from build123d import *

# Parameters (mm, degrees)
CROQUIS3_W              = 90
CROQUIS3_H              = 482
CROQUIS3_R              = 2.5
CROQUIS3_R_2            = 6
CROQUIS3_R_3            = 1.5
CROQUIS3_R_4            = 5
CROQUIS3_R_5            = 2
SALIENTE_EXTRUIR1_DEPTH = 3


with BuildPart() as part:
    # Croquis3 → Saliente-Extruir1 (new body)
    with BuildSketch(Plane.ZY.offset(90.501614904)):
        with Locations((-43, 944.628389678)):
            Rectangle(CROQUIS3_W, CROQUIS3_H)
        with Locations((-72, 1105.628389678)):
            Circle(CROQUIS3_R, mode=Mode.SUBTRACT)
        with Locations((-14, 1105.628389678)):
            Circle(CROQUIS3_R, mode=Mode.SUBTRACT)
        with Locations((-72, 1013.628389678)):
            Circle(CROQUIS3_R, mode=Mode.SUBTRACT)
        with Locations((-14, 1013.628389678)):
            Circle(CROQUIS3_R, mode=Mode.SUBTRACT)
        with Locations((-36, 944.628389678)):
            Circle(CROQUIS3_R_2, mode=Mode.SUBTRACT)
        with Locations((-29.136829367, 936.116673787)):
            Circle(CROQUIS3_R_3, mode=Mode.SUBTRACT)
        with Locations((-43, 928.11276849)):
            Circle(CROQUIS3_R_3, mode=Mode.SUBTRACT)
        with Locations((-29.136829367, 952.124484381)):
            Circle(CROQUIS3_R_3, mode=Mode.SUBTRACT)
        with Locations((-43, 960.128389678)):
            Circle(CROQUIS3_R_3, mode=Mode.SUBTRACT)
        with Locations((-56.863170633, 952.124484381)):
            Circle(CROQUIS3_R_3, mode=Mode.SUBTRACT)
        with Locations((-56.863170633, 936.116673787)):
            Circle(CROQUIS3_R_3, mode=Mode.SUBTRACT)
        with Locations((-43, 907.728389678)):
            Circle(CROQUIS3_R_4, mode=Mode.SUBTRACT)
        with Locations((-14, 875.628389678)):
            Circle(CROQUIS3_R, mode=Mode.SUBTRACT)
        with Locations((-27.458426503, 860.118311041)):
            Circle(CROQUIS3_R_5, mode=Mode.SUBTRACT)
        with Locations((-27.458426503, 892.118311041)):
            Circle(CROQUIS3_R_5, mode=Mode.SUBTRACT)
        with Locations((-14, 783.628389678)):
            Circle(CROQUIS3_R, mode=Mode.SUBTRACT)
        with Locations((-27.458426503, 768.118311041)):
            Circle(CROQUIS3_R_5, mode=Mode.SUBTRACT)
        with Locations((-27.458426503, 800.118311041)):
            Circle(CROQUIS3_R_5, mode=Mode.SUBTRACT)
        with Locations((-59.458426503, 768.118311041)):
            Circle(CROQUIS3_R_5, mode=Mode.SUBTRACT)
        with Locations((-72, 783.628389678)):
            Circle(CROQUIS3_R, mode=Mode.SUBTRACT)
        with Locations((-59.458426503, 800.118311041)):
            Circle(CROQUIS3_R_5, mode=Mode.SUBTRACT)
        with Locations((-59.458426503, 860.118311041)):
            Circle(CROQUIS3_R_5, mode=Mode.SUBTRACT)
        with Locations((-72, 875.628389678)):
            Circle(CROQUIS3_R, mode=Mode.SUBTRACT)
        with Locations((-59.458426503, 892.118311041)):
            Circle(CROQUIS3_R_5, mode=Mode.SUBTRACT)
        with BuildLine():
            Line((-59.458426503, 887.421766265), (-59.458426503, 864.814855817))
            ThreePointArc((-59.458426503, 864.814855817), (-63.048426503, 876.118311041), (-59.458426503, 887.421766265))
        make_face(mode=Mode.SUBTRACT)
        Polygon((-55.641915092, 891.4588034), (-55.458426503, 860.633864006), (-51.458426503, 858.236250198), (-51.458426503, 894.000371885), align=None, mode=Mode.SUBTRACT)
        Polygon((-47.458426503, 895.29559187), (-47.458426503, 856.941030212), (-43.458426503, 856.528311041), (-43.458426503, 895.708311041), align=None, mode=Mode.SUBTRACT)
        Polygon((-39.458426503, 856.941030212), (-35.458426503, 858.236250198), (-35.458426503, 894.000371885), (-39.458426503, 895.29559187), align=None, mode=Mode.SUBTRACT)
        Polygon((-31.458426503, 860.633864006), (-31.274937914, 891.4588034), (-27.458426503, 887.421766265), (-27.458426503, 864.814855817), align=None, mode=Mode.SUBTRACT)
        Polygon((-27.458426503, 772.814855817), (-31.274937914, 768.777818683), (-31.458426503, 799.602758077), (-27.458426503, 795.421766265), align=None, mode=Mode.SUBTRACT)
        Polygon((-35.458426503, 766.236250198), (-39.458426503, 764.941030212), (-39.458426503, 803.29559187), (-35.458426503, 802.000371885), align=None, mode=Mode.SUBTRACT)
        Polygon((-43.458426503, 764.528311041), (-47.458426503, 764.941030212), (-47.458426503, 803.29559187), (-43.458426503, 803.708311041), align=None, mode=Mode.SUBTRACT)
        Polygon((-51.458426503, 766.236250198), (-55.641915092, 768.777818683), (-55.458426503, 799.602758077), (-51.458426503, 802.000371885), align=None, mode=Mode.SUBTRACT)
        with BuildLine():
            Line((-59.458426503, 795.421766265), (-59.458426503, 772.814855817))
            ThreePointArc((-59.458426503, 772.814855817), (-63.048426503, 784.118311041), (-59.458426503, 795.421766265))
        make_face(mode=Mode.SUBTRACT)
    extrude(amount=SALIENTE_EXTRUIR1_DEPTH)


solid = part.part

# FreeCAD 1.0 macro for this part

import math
import FreeCAD as App
import Part
import Sketcher
Q = App.Units.Quantity

doc = App.newDocument("Part")
params = doc.addObject("Spreadsheet::Sheet", "Params")
for row, (alias, value) in enumerate([
    ("sketch1_diameter", "5 mm"),
    ("sketch1_diameter2", "4 mm"),
    ("sketch1_diameter3", "3 mm"),
    ("sketch1_diameter4", "10 mm"),
    ("sketch1_diameter5", "12 mm"),
    ("pad1_length", "3 mm"),
], start=1):
    params.set(f"A{row}", alias)
    params.set(f"B{row}", "=" + value)
    params.setAlias(f"B{row}", alias)

body = doc.addObject("PartDesign::Body", "Body")

# Sketch on YZ plane
sketch1 = body.newObject("Sketcher::SketchObject", "Sketch")
sketch1.AttachmentSupport = (doc.getObject("YZ_Plane"), [""])
sketch1.MapMode = "FlatFace"
sketch1.AttachmentOffset = App.Placement(App.Vector(0, 0, -90.501615), App.Rotation())
sketch1.addGeometry([
    Part.LineSegment(App.Vector(1185.6, -88, 0), App.Vector(703.6, -88, 0)),  # 0
    Part.LineSegment(App.Vector(703.6, -88, 0), App.Vector(703.6, 2, 0)),  # 1
    Part.LineSegment(App.Vector(703.6, 2, 0), App.Vector(1185.6, 2, 0)),  # 2
    Part.LineSegment(App.Vector(1185.6, 2, 0), App.Vector(1185.6, -88, 0)),  # 3
    Part.Circle(App.Vector(783.6, -72, 0), App.Vector(0, 0, 1), 2.5),  # 4
    Part.Circle(App.Vector(768.1, -59.5, 0), App.Vector(0, 0, 1), 2),  # 5
    Part.ArcOfCircle(Part.Circle(App.Vector(784.1, -43.5, 0), App.Vector(0, 0, 1), 19.6), math.radians(-125), math.radians(-55)),  # 6
    Part.LineSegment(App.Vector(795.4, -59.5, 0), App.Vector(772.8, -59.5, 0)),  # 7
    Part.Circle(App.Vector(800.1, -59.5, 0), App.Vector(0, 0, 1), 2),  # 8
    Part.LineSegment(App.Vector(802, -51.5, 0), App.Vector(766.2, -51.5, 0)),  # 9
    Part.LineSegment(App.Vector(766.2, -51.5, 0), App.Vector(768.8, -55.6, 0)),  # 10
    Part.LineSegment(App.Vector(768.8, -55.6, 0), App.Vector(799.6, -55.5, 0)),  # 11
    Part.LineSegment(App.Vector(799.6, -55.5, 0), App.Vector(802, -51.5, 0)),  # 12
    Part.LineSegment(App.Vector(803.7, -43.5, 0), App.Vector(764.5, -43.5, 0)),  # 13
    Part.LineSegment(App.Vector(764.5, -43.5, 0), App.Vector(764.9, -47.5, 0)),  # 14
    Part.LineSegment(App.Vector(764.9, -47.5, 0), App.Vector(803.3, -47.5, 0)),  # 15
    Part.LineSegment(App.Vector(803.3, -47.5, 0), App.Vector(803.7, -43.5, 0)),  # 16
    Part.Circle(App.Vector(875.6, -72, 0), App.Vector(0, 0, 1), 2.5),  # 17
    Part.Circle(App.Vector(860.1, -59.5, 0), App.Vector(0, 0, 1), 2),  # 18
    Part.ArcOfCircle(Part.Circle(App.Vector(876.1, -43.5, 0), App.Vector(0, 0, 1), 19.6), math.radians(-125), math.radians(-55)),  # 19
    Part.LineSegment(App.Vector(887.4, -59.5, 0), App.Vector(864.8, -59.5, 0)),  # 20
    Part.Circle(App.Vector(892.1, -59.5, 0), App.Vector(0, 0, 1), 2),  # 21
    Part.LineSegment(App.Vector(860.6, -55.5, 0), App.Vector(891.5, -55.6, 0)),  # 22
    Part.LineSegment(App.Vector(891.5, -55.6, 0), App.Vector(894, -51.5, 0)),  # 23
    Part.LineSegment(App.Vector(894, -51.5, 0), App.Vector(858.2, -51.5, 0)),  # 24
    Part.LineSegment(App.Vector(858.2, -51.5, 0), App.Vector(860.6, -55.5, 0)),  # 25
    Part.LineSegment(App.Vector(856.9, -47.5, 0), App.Vector(895.3, -47.5, 0)),  # 26
    Part.LineSegment(App.Vector(895.3, -47.5, 0), App.Vector(895.7, -43.5, 0)),  # 27
    Part.LineSegment(App.Vector(895.7, -43.5, 0), App.Vector(856.5, -43.5, 0)),  # 28
    Part.LineSegment(App.Vector(856.5, -43.5, 0), App.Vector(856.9, -47.5, 0)),  # 29
    Part.Circle(App.Vector(936.1, -56.9, 0), App.Vector(0, 0, 1), 1.5),  # 30
    Part.LineSegment(App.Vector(802, -35.5, 0), App.Vector(766.2, -35.5, 0)),  # 31
    Part.LineSegment(App.Vector(766.2, -35.5, 0), App.Vector(764.9, -39.5, 0)),  # 32
    Part.LineSegment(App.Vector(764.9, -39.5, 0), App.Vector(803.3, -39.5, 0)),  # 33
    Part.LineSegment(App.Vector(803.3, -39.5, 0), App.Vector(802, -35.5, 0)),  # 34
    Part.Circle(App.Vector(768.1, -27.5, 0), App.Vector(0, 0, 1), 2),  # 35
    Part.LineSegment(App.Vector(795.4, -27.5, 0), App.Vector(772.8, -27.5, 0)),  # 36
    Part.LineSegment(App.Vector(772.8, -27.5, 0), App.Vector(768.8, -31.3, 0)),  # 37
    Part.LineSegment(App.Vector(768.8, -31.3, 0), App.Vector(799.6, -31.5, 0)),  # 38
    Part.LineSegment(App.Vector(799.6, -31.5, 0), App.Vector(795.4, -27.5, 0)),  # 39
    Part.Circle(App.Vector(800.1, -27.5, 0), App.Vector(0, 0, 1), 2),  # 40
    Part.Circle(App.Vector(783.6, -14, 0), App.Vector(0, 0, 1), 2.5),  # 41
    Part.LineSegment(App.Vector(858.2, -35.5, 0), App.Vector(856.9, -39.5, 0)),  # 42
    Part.LineSegment(App.Vector(856.9, -39.5, 0), App.Vector(895.3, -39.5, 0)),  # 43
    Part.LineSegment(App.Vector(895.3, -39.5, 0), App.Vector(894, -35.5, 0)),  # 44
    Part.LineSegment(App.Vector(894, -35.5, 0), App.Vector(858.2, -35.5, 0)),  # 45
    Part.Circle(App.Vector(860.1, -27.5, 0), App.Vector(0, 0, 1), 2),  # 46
    Part.LineSegment(App.Vector(864.8, -27.5, 0), App.Vector(860.6, -31.5, 0)),  # 47
    Part.LineSegment(App.Vector(860.6, -31.5, 0), App.Vector(891.5, -31.3, 0)),  # 48
    Part.LineSegment(App.Vector(891.5, -31.3, 0), App.Vector(887.4, -27.5, 0)),  # 49
    Part.LineSegment(App.Vector(887.4, -27.5, 0), App.Vector(864.8, -27.5, 0)),  # 50
    Part.Circle(App.Vector(892.1, -27.5, 0), App.Vector(0, 0, 1), 2),  # 51
    Part.Circle(App.Vector(907.7, -43, 0), App.Vector(0, 0, 1), 5),  # 52
    Part.Circle(App.Vector(928.1, -43, 0), App.Vector(0, 0, 1), 1.5),  # 53
    Part.Circle(App.Vector(936.1, -29.1, 0), App.Vector(0, 0, 1), 1.5),  # 54
    Part.Circle(App.Vector(875.6, -14, 0), App.Vector(0, 0, 1), 2.5),  # 55
    Part.Circle(App.Vector(1013.6, -72, 0), App.Vector(0, 0, 1), 2.5),  # 56
    Part.Circle(App.Vector(952.1, -56.9, 0), App.Vector(0, 0, 1), 1.5),  # 57
    Part.Circle(App.Vector(1105.6, -72, 0), App.Vector(0, 0, 1), 2.5),  # 58
    Part.Circle(App.Vector(944.6, -36, 0), App.Vector(0, 0, 1), 6),  # 59
    Part.Circle(App.Vector(960.1, -43, 0), App.Vector(0, 0, 1), 1.5),  # 60
    Part.Circle(App.Vector(952.1, -29.1, 0), App.Vector(0, 0, 1), 1.5),  # 61
    Part.Circle(App.Vector(1013.6, -14, 0), App.Vector(0, 0, 1), 2.5),  # 62
    Part.Circle(App.Vector(1105.6, -14, 0), App.Vector(0, 0, 1), 2.5),  # 63
], False)
sketch1.addConstraint([
    Sketcher.Constraint("Coincident", 0, 2, 1, 1),
    Sketcher.Constraint("Coincident", 1, 2, 2, 1),
    Sketcher.Constraint("Coincident", 2, 2, 3, 1),
    Sketcher.Constraint("Coincident", 3, 2, 0, 1),
    Sketcher.Constraint("Coincident", 6, 1, 7, 2),
    Sketcher.Constraint("Coincident", 7, 1, 6, 2),
    Sketcher.Constraint("Coincident", 9, 2, 10, 1),
    Sketcher.Constraint("Coincident", 10, 2, 11, 1),
    Sketcher.Constraint("Coincident", 11, 2, 12, 1),
    Sketcher.Constraint("Coincident", 12, 2, 9, 1),
    Sketcher.Constraint("Coincident", 13, 2, 14, 1),
    Sketcher.Constraint("Coincident", 14, 2, 15, 1),
    Sketcher.Constraint("Coincident", 15, 2, 16, 1),
    Sketcher.Constraint("Coincident", 16, 2, 13, 1),
    Sketcher.Constraint("Coincident", 19, 1, 20, 2),
    Sketcher.Constraint("Coincident", 20, 1, 19, 2),
    Sketcher.Constraint("Coincident", 22, 2, 23, 1),
    Sketcher.Constraint("Coincident", 23, 2, 24, 1),
    Sketcher.Constraint("Coincident", 24, 2, 25, 1),
    Sketcher.Constraint("Coincident", 25, 2, 22, 1),
    Sketcher.Constraint("Coincident", 26, 2, 27, 1),
    Sketcher.Constraint("Coincident", 27, 2, 28, 1),
    Sketcher.Constraint("Coincident", 28, 2, 29, 1),
    Sketcher.Constraint("Coincident", 29, 2, 26, 1),
    Sketcher.Constraint("Coincident", 31, 2, 32, 1),
    Sketcher.Constraint("Coincident", 32, 2, 33, 1),
    Sketcher.Constraint("Coincident", 33, 2, 34, 1),
    Sketcher.Constraint("Coincident", 34, 2, 31, 1),
    Sketcher.Constraint("Coincident", 36, 2, 37, 1),
    Sketcher.Constraint("Coincident", 37, 2, 38, 1),
    Sketcher.Constraint("Coincident", 38, 2, 39, 1),
    Sketcher.Constraint("Coincident", 39, 2, 36, 1),
    Sketcher.Constraint("Coincident", 42, 2, 43, 1),
    Sketcher.Constraint("Coincident", 43, 2, 44, 1),
    Sketcher.Constraint("Coincident", 44, 2, 45, 1),
    Sketcher.Constraint("Coincident", 45, 2, 42, 1),
    Sketcher.Constraint("Coincident", 47, 2, 48, 1),
    Sketcher.Constraint("Coincident", 48, 2, 49, 1),
    Sketcher.Constraint("Coincident", 49, 2, 50, 1),
    Sketcher.Constraint("Coincident", 50, 2, 47, 1),
    Sketcher.Constraint("Horizontal", 0),
    Sketcher.Constraint("Vertical", 1),
    Sketcher.Constraint("Horizontal", 2),
    Sketcher.Constraint("Vertical", 3),
    Sketcher.Constraint("Horizontal", 7),
    Sketcher.Constraint("Horizontal", 9),
    Sketcher.Constraint("Horizontal", 13),
    Sketcher.Constraint("Horizontal", 15),
    Sketcher.Constraint("Horizontal", 20),
    Sketcher.Constraint("Horizontal", 24),
    Sketcher.Constraint("Horizontal", 26),
    Sketcher.Constraint("Horizontal", 28),
    Sketcher.Constraint("Horizontal", 31),
    Sketcher.Constraint("Horizontal", 33),
    Sketcher.Constraint("Horizontal", 36),
    Sketcher.Constraint("Horizontal", 43),
    Sketcher.Constraint("Horizontal", 45),
    Sketcher.Constraint("Horizontal", 50),
    Sketcher.Constraint("Equal", 5, 8),
    Sketcher.Constraint("Equal", 4, 17),
    Sketcher.Constraint("Equal", 8, 18),
    Sketcher.Constraint("Equal", 6, 19),
    Sketcher.Constraint("Equal", 18, 21),
    Sketcher.Constraint("Equal", 21, 35),
    Sketcher.Constraint("Equal", 35, 40),
    Sketcher.Constraint("Equal", 17, 41),
    Sketcher.Constraint("Equal", 40, 46),
    Sketcher.Constraint("Equal", 46, 51),
    Sketcher.Constraint("Equal", 30, 53),
    Sketcher.Constraint("Equal", 53, 54),
    Sketcher.Constraint("Equal", 41, 55),
    Sketcher.Constraint("Equal", 55, 56),
    Sketcher.Constraint("Equal", 54, 57),
    Sketcher.Constraint("Equal", 56, 58),
    Sketcher.Constraint("Equal", 57, 60),
    Sketcher.Constraint("Equal", 60, 61),
    Sketcher.Constraint("Equal", 58, 62),
    Sketcher.Constraint("Equal", 62, 63),
    Sketcher.Constraint("Parallel", 16, 27),
    Sketcher.Constraint("Parallel", 14, 29),
    Sketcher.Constraint("Parallel", 22, 38),
    Sketcher.Constraint("Parallel", 32, 42),
    Sketcher.Constraint("Parallel", 34, 44),
    Sketcher.Constraint("Parallel", 11, 48),
    Sketcher.Constraint("Horizontal", 5, 3, 8, 3),
    Sketcher.Constraint("Horizontal", 4, 3, 17, 3),
    Sketcher.Constraint("Horizontal", 8, 3, 18, 3),
    Sketcher.Constraint("Horizontal", 6, 3, 19, 3),
    Sketcher.Constraint("Horizontal", 18, 3, 21, 3),
    Sketcher.Constraint("Horizontal", 35, 3, 40, 3),
    Sketcher.Constraint("Horizontal", 40, 3, 46, 3),
    Sketcher.Constraint("Horizontal", 46, 3, 51, 3),
    Sketcher.Constraint("Horizontal", 52, 3, 53, 3),
    Sketcher.Constraint("Horizontal", 41, 3, 55, 3),
    Sketcher.Constraint("Horizontal", 17, 3, 56, 3),
    Sketcher.Constraint("Horizontal", 30, 3, 57, 3),
    Sketcher.Constraint("Horizontal", 56, 3, 58, 3),
    Sketcher.Constraint("Horizontal", 53, 3, 60, 3),
    Sketcher.Constraint("Horizontal", 54, 3, 61, 3),
    Sketcher.Constraint("Horizontal", 55, 3, 62, 3),
    Sketcher.Constraint("Horizontal", 62, 3, 63, 3),
    Sketcher.Constraint("Horizontal", 21, 3, 6, 1),
    Sketcher.Constraint("Horizontal", 19, 3, 13, 2),
    Sketcher.Constraint("Horizontal", 7, 1, 19, 1),
    Sketcher.Constraint("Horizontal", 10, 2, 22, 2),
    Sketcher.Constraint("Horizontal", 12, 2, 23, 2),
    Sketcher.Constraint("Horizontal", 11, 2, 25, 2),
    Sketcher.Constraint("Horizontal", 15, 2, 26, 2),
    Sketcher.Constraint("Horizontal", 16, 2, 27, 2),
    Sketcher.Constraint("Horizontal", 51, 3, 36, 2),
    Sketcher.Constraint("Horizontal", 33, 2, 42, 2),
    Sketcher.Constraint("Horizontal", 34, 2, 44, 2),
    Sketcher.Constraint("Horizontal", 38, 2, 47, 2),
    Sketcher.Constraint("Horizontal", 37, 2, 48, 2),
    Sketcher.Constraint("Horizontal", 39, 2, 49, 2),
    Sketcher.Constraint("Vertical", 5, 3, 35, 3),
    Sketcher.Constraint("Vertical", 8, 3, 40, 3),
    Sketcher.Constraint("Vertical", 4, 3, 41, 3),
    Sketcher.Constraint("Vertical", 18, 3, 46, 3),
    Sketcher.Constraint("Vertical", 21, 3, 51, 3),
    Sketcher.Constraint("Vertical", 30, 3, 54, 3),
    Sketcher.Constraint("Vertical", 17, 3, 55, 3),
    Sketcher.Constraint("Vertical", 57, 3, 61, 3),
    Sketcher.Constraint("Vertical", 56, 3, 62, 3),
    Sketcher.Constraint("Vertical", 58, 3, 63, 3),
    Sketcher.Constraint("Vertical", 9, 2, 31, 2),
    Sketcher.Constraint("Vertical", 14, 2, 32, 2),
    Sketcher.Constraint("Vertical", 15, 2, 33, 2),
    Sketcher.Constraint("Vertical", 12, 2, 34, 2),
    Sketcher.Constraint("Vertical", 6, 1, 36, 2),
    Sketcher.Constraint("Vertical", 10, 2, 37, 2),
    Sketcher.Constraint("Vertical", 11, 2, 38, 2),
    Sketcher.Constraint("Vertical", 7, 1, 39, 2),
    Sketcher.Constraint("Vertical", 29, 2, 42, 2),
    Sketcher.Constraint("Vertical", 26, 2, 43, 2),
    Sketcher.Constraint("Vertical", 23, 2, 44, 2),
    Sketcher.Constraint("Vertical", 24, 2, 45, 2),
    Sketcher.Constraint("Vertical", 25, 2, 47, 2),
    Sketcher.Constraint("Vertical", 22, 2, 48, 2),
    Sketcher.Constraint("Vertical", 20, 1, 49, 2),
    Sketcher.Constraint("Vertical", 19, 1, 50, 2),
    Sketcher.Constraint("Equal", 9, 24),
    Sketcher.Constraint("Equal", 14, 16),
    Sketcher.Constraint("Equal", 10, 23),
    Sketcher.Constraint("Equal", 32, 34),
    Sketcher.Constraint("Equal", 39, 47),
    Sketcher.Constraint("Diameter", 4, Q("5 mm")),
    Sketcher.Constraint("Diameter", 5, Q("4 mm")),
    Sketcher.Constraint("Diameter", 30, Q("3 mm")),
    Sketcher.Constraint("Diameter", 52, Q("10 mm")),
    Sketcher.Constraint("Diameter", 59, Q("12 mm")),
    Sketcher.Constraint("DistanceX", 0, 2, 0, 1, Q("482 mm")),
    Sketcher.Constraint("DistanceY", 1, 1, 1, 2, Q("90 mm")),
    Sketcher.Constraint("Radius", 6, Q("19.59 mm")),
    Sketcher.Constraint("DistanceY", 4, 3, -1, 1, Q("72 mm")),
    Sketcher.Constraint("DistanceY", 41, 3, -1, 1, Q("14 mm")),
    Sketcher.Constraint("DistanceY", 52, 3, -1, 1, Q("43 mm")),
    Sketcher.Constraint("DistanceY", 59, 3, -1, 1, Q("36 mm")),
    Sketcher.Constraint("DistanceY", 0, 2, -1, 1, Q("88 mm")),
    Sketcher.Constraint("DistanceX", 13, 2, 13, 1, Q("39.18 mm")),
    Sketcher.Constraint("DistanceX", 7, 2, 7, 1, Q("22.60691 mm")),
    Sketcher.Constraint("DistanceX", 9, 2, 9, 1, Q("35.764122 mm")),
    Sketcher.Constraint("DistanceX", 15, 1, 15, 2, Q("38.354562 mm")),
    Sketcher.Constraint("Distance", 39, Q("5.78625 mm")),
    Sketcher.Constraint("DistanceX", -1, 1, 4, 3, Q("783.62839 mm")),
    Sketcher.Constraint("DistanceX", -1, 1, 5, 3, Q("768.118311 mm")),
    Sketcher.Constraint("DistanceX", -1, 1, 6, 3, Q("784.118311 mm")),
    Sketcher.Constraint("DistanceX", -1, 1, 8, 3, Q("800.118311 mm")),
    Sketcher.Constraint("DistanceX", -1, 1, 17, 3, Q("875.62839 mm")),
    Sketcher.Constraint("DistanceX", -1, 1, 18, 3, Q("860.118311 mm")),
    Sketcher.Constraint("DistanceX", -1, 1, 19, 3, Q("876.118311 mm")),
    Sketcher.Constraint("DistanceX", -1, 1, 21, 3, Q("892.118311 mm")),
    Sketcher.Constraint("DistanceY", 30, 3, -1, 1, Q("56.863171 mm")),
    Sketcher.Constraint("DistanceX", -1, 1, 52, 3, Q("907.72839 mm")),
    Sketcher.Constraint("DistanceX", -1, 1, 53, 3, Q("928.112768 mm")),
    Sketcher.Constraint("DistanceY", 54, 3, -1, 1, Q("29.136829 mm")),
    Sketcher.Constraint("DistanceX", -1, 1, 56, 3, Q("1013.62839 mm")),
    Sketcher.Constraint("DistanceX", -1, 1, 58, 3, Q("1105.62839 mm")),
    Sketcher.Constraint("DistanceX", -1, 1, 59, 3, Q("944.62839 mm")),
    Sketcher.Constraint("DistanceX", -1, 1, 60, 3, Q("960.12839 mm")),
    Sketcher.Constraint("DistanceX", -1, 1, 0, 2, Q("703.62839 mm")),
    Sketcher.Constraint("DistanceX", -1, 1, 9, 2, Q("766.23625 mm")),
    Sketcher.Constraint("DistanceX", -1, 1, 10, 2, Q("768.777819 mm")),
    Sketcher.Constraint("DistanceX", -1, 1, 11, 2, Q("799.602758 mm")),
    Sketcher.Constraint("Distance", 10, Q("4.895012 mm")),
    Sketcher.Constraint("Distance", 12, Q("4.663534 mm")),
    Sketcher.Constraint("Distance", 14, Q("4.021236 mm")),
    Sketcher.Constraint("Distance", 32, Q("4.204473 mm")),
    Sketcher.Constraint("DistanceY", 5, 3, -1, 1, Q("59.458427 mm")),
    Sketcher.Constraint("DistanceX", -1, 1, 30, 3, Q("936.116674 mm")),
    Sketcher.Constraint("DistanceY", 35, 3, -1, 1, Q("27.458427 mm")),
    Sketcher.Constraint("DistanceX", -1, 1, 57, 3, Q("952.124484 mm")),
    Sketcher.Constraint("DistanceY", 9, 2, -1, 1, Q("51.458427 mm")),
    Sketcher.Constraint("DistanceY", 31, 2, -1, 1, Q("35.458427 mm")),
])
sketch1.setExpression("Constraints[146]", "Params.sketch1_diameter")
sketch1.setExpression("Constraints[147]", "Params.sketch1_diameter2")
sketch1.setExpression("Constraints[148]", "Params.sketch1_diameter3")
sketch1.setExpression("Constraints[149]", "Params.sketch1_diameter4")
sketch1.setExpression("Constraints[150]", "Params.sketch1_diameter5")
pad1 = body.newObject("PartDesign::Pad", "Pad")
pad1.Profile = sketch1
pad1.setExpression("Length", "Params.pad1_length")
pad1.Reversed = True

doc.recompute()
